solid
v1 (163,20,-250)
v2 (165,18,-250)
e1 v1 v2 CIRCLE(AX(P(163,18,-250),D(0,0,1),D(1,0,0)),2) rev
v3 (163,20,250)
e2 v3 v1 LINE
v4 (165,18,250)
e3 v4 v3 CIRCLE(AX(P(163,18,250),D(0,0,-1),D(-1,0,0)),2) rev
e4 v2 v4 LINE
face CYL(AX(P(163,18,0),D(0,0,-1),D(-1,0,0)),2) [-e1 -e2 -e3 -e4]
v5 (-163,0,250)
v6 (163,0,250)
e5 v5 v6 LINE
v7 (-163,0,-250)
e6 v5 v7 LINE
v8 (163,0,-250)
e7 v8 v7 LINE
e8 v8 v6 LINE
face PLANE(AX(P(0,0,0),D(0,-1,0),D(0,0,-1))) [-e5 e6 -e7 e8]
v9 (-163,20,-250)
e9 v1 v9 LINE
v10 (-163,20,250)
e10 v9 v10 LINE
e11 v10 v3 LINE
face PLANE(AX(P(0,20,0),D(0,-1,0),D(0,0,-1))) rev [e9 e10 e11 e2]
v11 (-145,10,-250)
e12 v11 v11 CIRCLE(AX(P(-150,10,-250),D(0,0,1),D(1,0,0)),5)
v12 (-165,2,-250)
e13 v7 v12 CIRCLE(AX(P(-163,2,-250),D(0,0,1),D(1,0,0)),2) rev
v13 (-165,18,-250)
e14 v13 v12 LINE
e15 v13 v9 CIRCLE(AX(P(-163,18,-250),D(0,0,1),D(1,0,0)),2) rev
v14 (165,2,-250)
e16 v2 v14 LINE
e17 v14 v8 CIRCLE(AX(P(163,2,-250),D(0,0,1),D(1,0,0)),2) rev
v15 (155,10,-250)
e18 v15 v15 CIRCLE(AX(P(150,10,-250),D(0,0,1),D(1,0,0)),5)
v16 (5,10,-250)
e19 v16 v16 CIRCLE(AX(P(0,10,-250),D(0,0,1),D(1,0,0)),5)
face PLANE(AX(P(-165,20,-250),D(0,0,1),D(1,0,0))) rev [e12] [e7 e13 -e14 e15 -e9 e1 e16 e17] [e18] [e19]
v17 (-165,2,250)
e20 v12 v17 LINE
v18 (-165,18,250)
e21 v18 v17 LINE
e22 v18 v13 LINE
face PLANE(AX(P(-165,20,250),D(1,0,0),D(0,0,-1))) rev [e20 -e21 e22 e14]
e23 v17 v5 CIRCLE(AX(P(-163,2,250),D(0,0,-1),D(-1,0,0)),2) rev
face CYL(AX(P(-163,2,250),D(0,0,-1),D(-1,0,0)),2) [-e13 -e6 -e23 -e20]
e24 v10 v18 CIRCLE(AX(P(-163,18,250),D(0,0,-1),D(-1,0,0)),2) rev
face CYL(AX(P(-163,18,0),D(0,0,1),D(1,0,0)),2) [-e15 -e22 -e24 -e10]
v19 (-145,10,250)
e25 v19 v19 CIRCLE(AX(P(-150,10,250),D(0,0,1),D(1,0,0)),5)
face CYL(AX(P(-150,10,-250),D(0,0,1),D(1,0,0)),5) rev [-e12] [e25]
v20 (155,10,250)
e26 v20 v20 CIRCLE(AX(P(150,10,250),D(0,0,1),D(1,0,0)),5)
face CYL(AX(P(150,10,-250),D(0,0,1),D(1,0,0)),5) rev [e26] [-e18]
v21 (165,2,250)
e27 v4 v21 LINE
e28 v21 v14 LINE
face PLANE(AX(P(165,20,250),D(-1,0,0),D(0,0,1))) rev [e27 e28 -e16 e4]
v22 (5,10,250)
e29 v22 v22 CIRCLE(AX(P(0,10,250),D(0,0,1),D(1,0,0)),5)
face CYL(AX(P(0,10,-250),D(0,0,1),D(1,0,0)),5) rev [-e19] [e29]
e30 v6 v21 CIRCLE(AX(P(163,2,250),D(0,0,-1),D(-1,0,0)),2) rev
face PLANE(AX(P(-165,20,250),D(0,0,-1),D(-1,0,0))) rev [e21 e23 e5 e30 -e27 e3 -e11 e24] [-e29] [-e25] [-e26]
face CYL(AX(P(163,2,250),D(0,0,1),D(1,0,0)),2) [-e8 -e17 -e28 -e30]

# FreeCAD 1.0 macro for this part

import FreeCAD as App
import Part
import Sketcher

V = App.Vector
Q = App.Units.Quantity


def edges_at(feature, points):
    """Names of the edges that pass closest to the given points."""
    edges = feature.Shape.Edges
    near = lambda p: min(range(len(edges)), key=lambda i: edges[i].distToShape(Part.Vertex(*p))[0])
    return sorted({f"Edge{near(p) + 1}" for p in points})


def add_polygon(sketch, points):
    """Adds a closed chain of lines whose ends are joined by coincident constraints."""
    first, n = sketch.GeometryCount, len(points)
    for a, b in zip(points, points[1:] + points[:1]):
        sketch.addGeometry(Part.LineSegment(App.Vector(*a, 0), App.Vector(*b, 0)), False)
    for i in range(n):
        sketch.addConstraint(Sketcher.Constraint("Coincident", first + i, 2, first + (i + 1) % n, 1))

doc = App.newDocument("Part")
params = doc.addObject("Spreadsheet::Sheet", "Params")
for row, (alias, value) in enumerate([
    ("sketch1_width", "330 mm"),
    ("sketch1_height", "500 mm"),
    ("pad1_length", "20 mm"),
    ("sketch2_diameter", "10 mm"),
    ("fillet_radius", "2 mm"),
], start=1):
    params.set(f"A{row}", alias)
    params.set(f"B{row}", "=" + value)
    params.setAlias(f"B{row}", alias)

body = doc.addObject("PartDesign::Body", "Body")

sketch1 = body.newObject("Sketcher::SketchObject", "Sketch")
sketch1.AttachmentSupport = (doc.getObject("XZ_Plane"), [""])
sketch1.MapMode = "FlatFace"
add_polygon(sketch1, [(-165, -250), (-165, 250), (165, 250), (165, -250)])
sketch1.addConstraint([
    Sketcher.Constraint("Vertical", 0),
    Sketcher.Constraint("Horizontal", 1),
    Sketcher.Constraint("Vertical", 2),
    Sketcher.Constraint("Horizontal", 3),
    Sketcher.Constraint("Symmetric", 0, 2, 2, 2, -1, 1),
    Sketcher.Constraint("DistanceX", 1, 1, 1, 2, Q("330 mm")),
    Sketcher.Constraint("DistanceY", 0, 1, 0, 2, Q("500 mm")),
])
sketch1.setExpression("Constraints[9]", "Params.sketch1_width")
sketch1.setExpression("Constraints[10]", "Params.sketch1_height")
pad1 = body.newObject("PartDesign::Pad", "Pad")
pad1.Profile = sketch1
pad1.setExpression("Length", "Params.pad1_length")
pad1.Reversed = True

sketch2 = body.newObject("Sketcher::SketchObject", "Sketch001")
sketch2.AttachmentSupport = (doc.getObject("XY_Plane"), [""])
sketch2.MapMode = "FlatFace"
sketch2.AttachmentOffset = App.Placement(V(0, 0, 250), App.Rotation())
sketch2.addGeometry([
    Part.Circle(V(0, 10, 0), V(0, 0, 1), 5),
    Part.Circle(V(-150, 10, 0), V(0, 0, 1), 5),
    Part.Circle(V(150, 10, 0), V(0, 0, 1), 5),
], False)
sketch2.addConstraint([
    Sketcher.Constraint("Equal", 0, 1),
    Sketcher.Constraint("Equal", 1, 2),
    Sketcher.Constraint("Symmetric", 1, 3, 2, 3, -2),
    Sketcher.Constraint("PointOnObject", 0, 3, -2),
    Sketcher.Constraint("Horizontal", 0, 3, 1, 3),
    Sketcher.Constraint("Diameter", 0, Q("10 mm")),
    Sketcher.Constraint("DistanceY", -1, 1, 0, 3, Q("10 mm")),
    Sketcher.Constraint("DistanceX", 1, 3, -1, 1, Q("150 mm")),
])
sketch2.setExpression("Constraints[5]", "Params.sketch2_diameter")
pocket1 = body.newObject("PartDesign::Pocket", "Pocket")
pocket1.Profile = sketch2
pocket1.Type = "ThroughAll"
doc.recompute()

fillet = body.newObject("PartDesign::Fillet", "Fillet")
fillet.Base = (pocket1, edges_at(pocket1, [
    (-165, 20, 0),
    (165, 20, 0),
    (-165, 0, 0),
    (165, 0, 0),
]))
fillet.setExpression("Radius", "Params.fillet_radius")

doc.recompute()
